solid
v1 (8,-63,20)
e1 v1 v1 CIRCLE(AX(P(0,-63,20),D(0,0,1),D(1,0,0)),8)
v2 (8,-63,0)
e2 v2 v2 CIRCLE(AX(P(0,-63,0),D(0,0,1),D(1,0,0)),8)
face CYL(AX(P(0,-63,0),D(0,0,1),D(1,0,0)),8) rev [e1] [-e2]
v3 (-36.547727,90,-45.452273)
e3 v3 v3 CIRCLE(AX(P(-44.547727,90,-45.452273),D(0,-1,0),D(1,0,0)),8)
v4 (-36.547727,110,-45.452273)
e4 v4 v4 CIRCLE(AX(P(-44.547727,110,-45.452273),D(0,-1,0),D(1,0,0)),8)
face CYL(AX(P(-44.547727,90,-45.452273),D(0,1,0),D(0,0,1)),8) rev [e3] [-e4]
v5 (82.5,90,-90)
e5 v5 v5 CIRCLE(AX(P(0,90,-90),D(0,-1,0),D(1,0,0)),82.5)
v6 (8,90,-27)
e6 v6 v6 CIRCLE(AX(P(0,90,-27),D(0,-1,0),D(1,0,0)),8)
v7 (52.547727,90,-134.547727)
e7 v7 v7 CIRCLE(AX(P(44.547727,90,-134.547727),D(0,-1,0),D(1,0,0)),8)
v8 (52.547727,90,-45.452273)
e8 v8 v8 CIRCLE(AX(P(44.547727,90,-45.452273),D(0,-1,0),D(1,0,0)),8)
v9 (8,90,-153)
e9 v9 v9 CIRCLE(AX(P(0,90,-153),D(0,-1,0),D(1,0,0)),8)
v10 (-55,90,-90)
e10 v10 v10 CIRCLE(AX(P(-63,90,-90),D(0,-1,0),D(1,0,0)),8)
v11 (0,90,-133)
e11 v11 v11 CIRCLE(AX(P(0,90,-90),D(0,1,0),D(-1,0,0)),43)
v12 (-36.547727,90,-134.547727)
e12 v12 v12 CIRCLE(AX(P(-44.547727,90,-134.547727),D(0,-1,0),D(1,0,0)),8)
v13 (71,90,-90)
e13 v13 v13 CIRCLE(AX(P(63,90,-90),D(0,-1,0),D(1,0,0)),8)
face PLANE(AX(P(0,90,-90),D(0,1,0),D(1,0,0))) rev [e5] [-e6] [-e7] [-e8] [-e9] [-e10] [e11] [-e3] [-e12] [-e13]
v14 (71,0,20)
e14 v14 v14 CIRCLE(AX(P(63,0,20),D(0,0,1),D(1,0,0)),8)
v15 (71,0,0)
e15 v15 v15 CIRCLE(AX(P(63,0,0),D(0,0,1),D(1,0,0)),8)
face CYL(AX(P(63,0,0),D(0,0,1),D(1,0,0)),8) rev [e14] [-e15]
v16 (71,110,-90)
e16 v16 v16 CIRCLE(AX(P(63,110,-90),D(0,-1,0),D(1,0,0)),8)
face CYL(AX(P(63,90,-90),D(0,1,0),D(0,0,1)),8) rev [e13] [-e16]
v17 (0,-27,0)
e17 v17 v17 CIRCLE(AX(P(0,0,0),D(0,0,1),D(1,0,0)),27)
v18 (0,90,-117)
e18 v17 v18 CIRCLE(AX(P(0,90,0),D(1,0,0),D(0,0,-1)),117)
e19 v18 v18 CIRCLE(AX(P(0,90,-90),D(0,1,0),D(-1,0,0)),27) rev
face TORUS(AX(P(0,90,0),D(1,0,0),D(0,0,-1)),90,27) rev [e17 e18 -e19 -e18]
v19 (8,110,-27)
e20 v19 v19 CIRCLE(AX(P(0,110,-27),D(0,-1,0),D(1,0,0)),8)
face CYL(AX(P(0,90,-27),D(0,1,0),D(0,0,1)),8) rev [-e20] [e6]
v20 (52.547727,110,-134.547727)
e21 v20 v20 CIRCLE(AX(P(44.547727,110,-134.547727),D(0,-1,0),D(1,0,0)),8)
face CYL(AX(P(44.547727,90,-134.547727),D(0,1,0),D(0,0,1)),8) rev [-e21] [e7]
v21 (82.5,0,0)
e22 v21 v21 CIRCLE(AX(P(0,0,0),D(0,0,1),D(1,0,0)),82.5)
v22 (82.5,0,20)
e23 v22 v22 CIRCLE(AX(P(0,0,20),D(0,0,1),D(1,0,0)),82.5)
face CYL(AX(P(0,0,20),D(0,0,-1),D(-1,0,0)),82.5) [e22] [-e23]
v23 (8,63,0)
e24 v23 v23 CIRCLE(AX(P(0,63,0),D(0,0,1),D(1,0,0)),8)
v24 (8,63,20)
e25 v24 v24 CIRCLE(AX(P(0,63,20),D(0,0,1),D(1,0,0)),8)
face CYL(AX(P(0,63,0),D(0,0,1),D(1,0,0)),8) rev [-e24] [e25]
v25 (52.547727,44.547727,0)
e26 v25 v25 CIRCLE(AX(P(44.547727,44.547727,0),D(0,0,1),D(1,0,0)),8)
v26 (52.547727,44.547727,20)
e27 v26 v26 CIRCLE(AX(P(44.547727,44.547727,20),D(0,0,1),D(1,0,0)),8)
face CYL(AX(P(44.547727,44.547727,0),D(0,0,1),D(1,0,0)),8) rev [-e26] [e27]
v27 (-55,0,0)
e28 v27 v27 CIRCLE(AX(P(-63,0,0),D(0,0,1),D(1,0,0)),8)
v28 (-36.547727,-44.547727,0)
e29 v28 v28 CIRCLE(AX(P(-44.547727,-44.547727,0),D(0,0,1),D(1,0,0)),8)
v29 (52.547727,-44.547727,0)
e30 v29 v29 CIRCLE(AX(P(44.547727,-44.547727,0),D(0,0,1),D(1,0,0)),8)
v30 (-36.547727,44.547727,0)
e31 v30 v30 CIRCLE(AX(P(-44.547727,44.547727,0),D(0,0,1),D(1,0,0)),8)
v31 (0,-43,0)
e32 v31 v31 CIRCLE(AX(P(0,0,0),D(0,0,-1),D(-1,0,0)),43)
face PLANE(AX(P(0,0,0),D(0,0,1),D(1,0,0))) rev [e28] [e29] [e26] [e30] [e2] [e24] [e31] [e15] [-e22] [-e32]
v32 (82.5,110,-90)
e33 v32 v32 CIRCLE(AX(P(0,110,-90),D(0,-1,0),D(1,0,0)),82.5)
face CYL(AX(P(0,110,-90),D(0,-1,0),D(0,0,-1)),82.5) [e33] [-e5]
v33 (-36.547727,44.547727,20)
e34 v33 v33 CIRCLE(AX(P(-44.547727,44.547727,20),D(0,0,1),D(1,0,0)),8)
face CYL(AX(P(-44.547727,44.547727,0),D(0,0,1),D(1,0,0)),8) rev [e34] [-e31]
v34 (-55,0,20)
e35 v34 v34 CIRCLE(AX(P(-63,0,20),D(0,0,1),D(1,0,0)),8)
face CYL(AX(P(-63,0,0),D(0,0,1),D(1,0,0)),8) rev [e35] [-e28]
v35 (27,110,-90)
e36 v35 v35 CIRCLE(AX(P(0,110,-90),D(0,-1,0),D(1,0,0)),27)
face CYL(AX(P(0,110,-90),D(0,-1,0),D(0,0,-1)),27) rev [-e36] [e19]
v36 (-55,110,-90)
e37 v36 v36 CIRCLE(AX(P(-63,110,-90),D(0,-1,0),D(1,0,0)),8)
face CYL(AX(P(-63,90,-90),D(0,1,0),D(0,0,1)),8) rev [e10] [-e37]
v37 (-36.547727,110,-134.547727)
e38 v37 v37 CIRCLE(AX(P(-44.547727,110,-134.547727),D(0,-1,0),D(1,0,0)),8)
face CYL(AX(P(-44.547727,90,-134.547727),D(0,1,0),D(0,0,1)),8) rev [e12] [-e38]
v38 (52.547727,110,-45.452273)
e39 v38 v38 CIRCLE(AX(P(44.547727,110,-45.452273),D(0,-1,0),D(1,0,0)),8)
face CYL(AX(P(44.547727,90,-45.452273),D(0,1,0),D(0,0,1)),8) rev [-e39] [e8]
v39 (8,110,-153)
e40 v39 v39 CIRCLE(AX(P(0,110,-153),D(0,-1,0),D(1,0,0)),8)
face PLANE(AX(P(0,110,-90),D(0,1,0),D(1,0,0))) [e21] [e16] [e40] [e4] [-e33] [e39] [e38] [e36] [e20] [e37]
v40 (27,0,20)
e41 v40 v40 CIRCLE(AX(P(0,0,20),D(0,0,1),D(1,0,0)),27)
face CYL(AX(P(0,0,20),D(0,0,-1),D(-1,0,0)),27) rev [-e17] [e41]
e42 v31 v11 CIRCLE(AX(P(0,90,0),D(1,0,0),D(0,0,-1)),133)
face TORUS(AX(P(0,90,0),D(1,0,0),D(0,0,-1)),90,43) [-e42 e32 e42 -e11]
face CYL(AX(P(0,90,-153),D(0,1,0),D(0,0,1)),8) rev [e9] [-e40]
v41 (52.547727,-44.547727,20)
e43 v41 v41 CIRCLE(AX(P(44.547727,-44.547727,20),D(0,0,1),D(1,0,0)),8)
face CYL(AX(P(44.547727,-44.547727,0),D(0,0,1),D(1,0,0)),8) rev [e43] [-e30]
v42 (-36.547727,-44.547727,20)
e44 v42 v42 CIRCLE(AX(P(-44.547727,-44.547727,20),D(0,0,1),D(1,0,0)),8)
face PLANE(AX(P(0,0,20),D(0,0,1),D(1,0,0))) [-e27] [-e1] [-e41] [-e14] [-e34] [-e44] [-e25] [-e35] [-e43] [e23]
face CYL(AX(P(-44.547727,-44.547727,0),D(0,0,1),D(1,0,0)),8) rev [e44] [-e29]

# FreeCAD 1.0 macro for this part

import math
import FreeCAD as App
import Part
import Sketcher
from FreeCAD import Vector

doc = App.newDocument("Part")
body = doc.addObject("PartDesign::Body", "Body")

# Sketch on XY plane
sketch1 = body.newObject("Sketcher::SketchObject", "Sketch")
sketch1.AttachmentSupport = (doc.getObject("XY_Plane"), [""])
sketch1.MapMode = "FlatFace"
sketch1.addGeometry([
    Part.Circle(Vector(0, 0, 0), Vector(0, 0, 1), 82),
    Part.Circle(Vector(0, 0, 0), Vector(0, 0, 1), 27),
], False)
sketch1.addConstraint([
    Sketcher.Constraint("Coincident", 0, 3, -1, 1),
    Sketcher.Constraint("Coincident", 1, 3, -1, 1),
    Sketcher.Constraint("Diameter", 0, 165.0),
    Sketcher.Constraint("Diameter", 1, 54.0),
])
pad1 = body.newObject("PartDesign::Pad", "Pad")
pad1.Profile = sketch1
pad1.Length = 20

# Sketch on XY plane
sketch2 = body.newObject("Sketcher::SketchObject", "Sketch001")
sketch2.AttachmentSupport = (doc.getObject("XY_Plane"), [""])
sketch2.MapMode = "FlatFace"
sketch2.AttachmentOffset = App.Placement(Vector(0, 0, 20), App.Rotation())
sketch2.addGeometry([
    Part.Circle(Vector(0, 63, 0), Vector(0, 0, 1), 8),  # 0
    Part.Circle(Vector(45, 45, 0), Vector(0, 0, 1), 8),  # 1
    Part.Circle(Vector(63, 0, 0), Vector(0, 0, 1), 8),  # 2
    Part.Circle(Vector(45, -45, 0), Vector(0, 0, 1), 8),  # 3
    Part.Circle(Vector(0, -63, 0), Vector(0, 0, 1), 8),  # 4
    Part.Circle(Vector(-45, -45, 0), Vector(0, 0, 1), 8),  # 5
    Part.Circle(Vector(-63, 0, 0), Vector(0, 0, 1), 8),  # 6
    Part.Circle(Vector(-45, 45, 0), Vector(0, 0, 1), 8),  # 7
], False)
sketch2.addConstraint([
    Sketcher.Constraint("Equal", 0, 1),
    Sketcher.Constraint("Equal", 1, 2),
    Sketcher.Constraint("Equal", 2, 3),
    Sketcher.Constraint("Equal", 3, 4),
    Sketcher.Constraint("Equal", 4, 5),
    Sketcher.Constraint("Equal", 5, 6),
    Sketcher.Constraint("Equal", 6, 7),
    Sketcher.Constraint("Symmetric", 0, 3, 4, 3, -1, 1),
    Sketcher.Constraint("Symmetric", 1, 3, 5, 3, -1, 1),
    Sketcher.Constraint("Symmetric", 2, 3, 6, 3, -1, 1),
    Sketcher.Constraint("Symmetric", 3, 3, 7, 3, -1, 1),
    Sketcher.Constraint("Symmetric", 3, 3, 5, 3, -2),
    Sketcher.Constraint("PointOnObject", 0, 3, -2),
    Sketcher.Constraint("PointOnObject", 2, 3, -1),
    Sketcher.Constraint("Diameter", 0, 16.0),
    Sketcher.Constraint("DistanceY", -1, 1, 0, 3, 63.0),
    Sketcher.Constraint("DistanceX", -1, 1, 2, 3, 63.0),
    Sketcher.Constraint("DistanceX", -1, 1, 1, 3, 44.547727),
    Sketcher.Constraint("DistanceY", -1, 1, 1, 3, 44.547727),
])
pocket1 = body.newObject("PartDesign::Pocket", "Pocket")
pocket1.Profile = sketch2
pocket1.Length = 20

# Sketch on XY plane
sketch3 = body.newObject("Sketcher::SketchObject", "Sketch002")
sketch3.AttachmentSupport = (doc.getObject("XY_Plane"), [""])
sketch3.MapMode = "FlatFace"
sketch3.addGeometry([
    Part.Circle(Vector(0, 0, 0), Vector(0, 0, 1), 43),
    Part.Circle(Vector(0, 0, 0), Vector(0, 0, 1), 27),
], False)
sketch3.addConstraint([
    Sketcher.Constraint("Coincident", 0, 3, -1, 1),
    Sketcher.Constraint("Coincident", 1, 3, -1, 1),
    Sketcher.Constraint("Diameter", 0, 86.0),
    Sketcher.Constraint("Diameter", 1, 54.0),
])

# Sketch on YZ plane
sketch4 = body.newObject("Sketcher::SketchObject", "Sketch003")
sketch4.AttachmentSupport = (doc.getObject("YZ_Plane"), [""])
sketch4.MapMode = "FlatFace"
sketch4.addGeometry(Part.ArcOfCircle(Part.Circle(Vector(90, 0, 0), Vector(0, 0, 1), 90), math.radians(180), math.radians(270)), False)
sketch4.addConstraint([
    Sketcher.Constraint("Coincident", 0, 1, -1, 1),
    Sketcher.Constraint("PointOnObject", 0, 3, -1),
    Sketcher.Constraint("Radius", 0, 90.0),
    Sketcher.Constraint("DistanceX", -1, 1, 0, 2, 90.0),
])
doc.recompute()

additivepipe = body.newObject("PartDesign::AdditivePipe", "AdditivePipe")
additivepipe.Profile = sketch3
additivepipe.Spine = (sketch4, ["Edge1"])
doc.recompute()

datumplane = body.newObject("PartDesign::Plane", "DatumPlane")
datumplane.Placement = App.Placement(Vector(0, 45, -45), App.Rotation(Vector(0, 0.707106781, 0.707106781), Vector(-1, 0, 0), Vector(0, -0.707106781, 0.707106781), "ZXY"))
mirrored = body.newObject("PartDesign::Mirrored", "Mirrored")
mirrored.Originals = [pad1, pocket1]
mirrored.MirrorPlane = (datumplane, [""])
body.Tip = mirrored

doc.recompute()
